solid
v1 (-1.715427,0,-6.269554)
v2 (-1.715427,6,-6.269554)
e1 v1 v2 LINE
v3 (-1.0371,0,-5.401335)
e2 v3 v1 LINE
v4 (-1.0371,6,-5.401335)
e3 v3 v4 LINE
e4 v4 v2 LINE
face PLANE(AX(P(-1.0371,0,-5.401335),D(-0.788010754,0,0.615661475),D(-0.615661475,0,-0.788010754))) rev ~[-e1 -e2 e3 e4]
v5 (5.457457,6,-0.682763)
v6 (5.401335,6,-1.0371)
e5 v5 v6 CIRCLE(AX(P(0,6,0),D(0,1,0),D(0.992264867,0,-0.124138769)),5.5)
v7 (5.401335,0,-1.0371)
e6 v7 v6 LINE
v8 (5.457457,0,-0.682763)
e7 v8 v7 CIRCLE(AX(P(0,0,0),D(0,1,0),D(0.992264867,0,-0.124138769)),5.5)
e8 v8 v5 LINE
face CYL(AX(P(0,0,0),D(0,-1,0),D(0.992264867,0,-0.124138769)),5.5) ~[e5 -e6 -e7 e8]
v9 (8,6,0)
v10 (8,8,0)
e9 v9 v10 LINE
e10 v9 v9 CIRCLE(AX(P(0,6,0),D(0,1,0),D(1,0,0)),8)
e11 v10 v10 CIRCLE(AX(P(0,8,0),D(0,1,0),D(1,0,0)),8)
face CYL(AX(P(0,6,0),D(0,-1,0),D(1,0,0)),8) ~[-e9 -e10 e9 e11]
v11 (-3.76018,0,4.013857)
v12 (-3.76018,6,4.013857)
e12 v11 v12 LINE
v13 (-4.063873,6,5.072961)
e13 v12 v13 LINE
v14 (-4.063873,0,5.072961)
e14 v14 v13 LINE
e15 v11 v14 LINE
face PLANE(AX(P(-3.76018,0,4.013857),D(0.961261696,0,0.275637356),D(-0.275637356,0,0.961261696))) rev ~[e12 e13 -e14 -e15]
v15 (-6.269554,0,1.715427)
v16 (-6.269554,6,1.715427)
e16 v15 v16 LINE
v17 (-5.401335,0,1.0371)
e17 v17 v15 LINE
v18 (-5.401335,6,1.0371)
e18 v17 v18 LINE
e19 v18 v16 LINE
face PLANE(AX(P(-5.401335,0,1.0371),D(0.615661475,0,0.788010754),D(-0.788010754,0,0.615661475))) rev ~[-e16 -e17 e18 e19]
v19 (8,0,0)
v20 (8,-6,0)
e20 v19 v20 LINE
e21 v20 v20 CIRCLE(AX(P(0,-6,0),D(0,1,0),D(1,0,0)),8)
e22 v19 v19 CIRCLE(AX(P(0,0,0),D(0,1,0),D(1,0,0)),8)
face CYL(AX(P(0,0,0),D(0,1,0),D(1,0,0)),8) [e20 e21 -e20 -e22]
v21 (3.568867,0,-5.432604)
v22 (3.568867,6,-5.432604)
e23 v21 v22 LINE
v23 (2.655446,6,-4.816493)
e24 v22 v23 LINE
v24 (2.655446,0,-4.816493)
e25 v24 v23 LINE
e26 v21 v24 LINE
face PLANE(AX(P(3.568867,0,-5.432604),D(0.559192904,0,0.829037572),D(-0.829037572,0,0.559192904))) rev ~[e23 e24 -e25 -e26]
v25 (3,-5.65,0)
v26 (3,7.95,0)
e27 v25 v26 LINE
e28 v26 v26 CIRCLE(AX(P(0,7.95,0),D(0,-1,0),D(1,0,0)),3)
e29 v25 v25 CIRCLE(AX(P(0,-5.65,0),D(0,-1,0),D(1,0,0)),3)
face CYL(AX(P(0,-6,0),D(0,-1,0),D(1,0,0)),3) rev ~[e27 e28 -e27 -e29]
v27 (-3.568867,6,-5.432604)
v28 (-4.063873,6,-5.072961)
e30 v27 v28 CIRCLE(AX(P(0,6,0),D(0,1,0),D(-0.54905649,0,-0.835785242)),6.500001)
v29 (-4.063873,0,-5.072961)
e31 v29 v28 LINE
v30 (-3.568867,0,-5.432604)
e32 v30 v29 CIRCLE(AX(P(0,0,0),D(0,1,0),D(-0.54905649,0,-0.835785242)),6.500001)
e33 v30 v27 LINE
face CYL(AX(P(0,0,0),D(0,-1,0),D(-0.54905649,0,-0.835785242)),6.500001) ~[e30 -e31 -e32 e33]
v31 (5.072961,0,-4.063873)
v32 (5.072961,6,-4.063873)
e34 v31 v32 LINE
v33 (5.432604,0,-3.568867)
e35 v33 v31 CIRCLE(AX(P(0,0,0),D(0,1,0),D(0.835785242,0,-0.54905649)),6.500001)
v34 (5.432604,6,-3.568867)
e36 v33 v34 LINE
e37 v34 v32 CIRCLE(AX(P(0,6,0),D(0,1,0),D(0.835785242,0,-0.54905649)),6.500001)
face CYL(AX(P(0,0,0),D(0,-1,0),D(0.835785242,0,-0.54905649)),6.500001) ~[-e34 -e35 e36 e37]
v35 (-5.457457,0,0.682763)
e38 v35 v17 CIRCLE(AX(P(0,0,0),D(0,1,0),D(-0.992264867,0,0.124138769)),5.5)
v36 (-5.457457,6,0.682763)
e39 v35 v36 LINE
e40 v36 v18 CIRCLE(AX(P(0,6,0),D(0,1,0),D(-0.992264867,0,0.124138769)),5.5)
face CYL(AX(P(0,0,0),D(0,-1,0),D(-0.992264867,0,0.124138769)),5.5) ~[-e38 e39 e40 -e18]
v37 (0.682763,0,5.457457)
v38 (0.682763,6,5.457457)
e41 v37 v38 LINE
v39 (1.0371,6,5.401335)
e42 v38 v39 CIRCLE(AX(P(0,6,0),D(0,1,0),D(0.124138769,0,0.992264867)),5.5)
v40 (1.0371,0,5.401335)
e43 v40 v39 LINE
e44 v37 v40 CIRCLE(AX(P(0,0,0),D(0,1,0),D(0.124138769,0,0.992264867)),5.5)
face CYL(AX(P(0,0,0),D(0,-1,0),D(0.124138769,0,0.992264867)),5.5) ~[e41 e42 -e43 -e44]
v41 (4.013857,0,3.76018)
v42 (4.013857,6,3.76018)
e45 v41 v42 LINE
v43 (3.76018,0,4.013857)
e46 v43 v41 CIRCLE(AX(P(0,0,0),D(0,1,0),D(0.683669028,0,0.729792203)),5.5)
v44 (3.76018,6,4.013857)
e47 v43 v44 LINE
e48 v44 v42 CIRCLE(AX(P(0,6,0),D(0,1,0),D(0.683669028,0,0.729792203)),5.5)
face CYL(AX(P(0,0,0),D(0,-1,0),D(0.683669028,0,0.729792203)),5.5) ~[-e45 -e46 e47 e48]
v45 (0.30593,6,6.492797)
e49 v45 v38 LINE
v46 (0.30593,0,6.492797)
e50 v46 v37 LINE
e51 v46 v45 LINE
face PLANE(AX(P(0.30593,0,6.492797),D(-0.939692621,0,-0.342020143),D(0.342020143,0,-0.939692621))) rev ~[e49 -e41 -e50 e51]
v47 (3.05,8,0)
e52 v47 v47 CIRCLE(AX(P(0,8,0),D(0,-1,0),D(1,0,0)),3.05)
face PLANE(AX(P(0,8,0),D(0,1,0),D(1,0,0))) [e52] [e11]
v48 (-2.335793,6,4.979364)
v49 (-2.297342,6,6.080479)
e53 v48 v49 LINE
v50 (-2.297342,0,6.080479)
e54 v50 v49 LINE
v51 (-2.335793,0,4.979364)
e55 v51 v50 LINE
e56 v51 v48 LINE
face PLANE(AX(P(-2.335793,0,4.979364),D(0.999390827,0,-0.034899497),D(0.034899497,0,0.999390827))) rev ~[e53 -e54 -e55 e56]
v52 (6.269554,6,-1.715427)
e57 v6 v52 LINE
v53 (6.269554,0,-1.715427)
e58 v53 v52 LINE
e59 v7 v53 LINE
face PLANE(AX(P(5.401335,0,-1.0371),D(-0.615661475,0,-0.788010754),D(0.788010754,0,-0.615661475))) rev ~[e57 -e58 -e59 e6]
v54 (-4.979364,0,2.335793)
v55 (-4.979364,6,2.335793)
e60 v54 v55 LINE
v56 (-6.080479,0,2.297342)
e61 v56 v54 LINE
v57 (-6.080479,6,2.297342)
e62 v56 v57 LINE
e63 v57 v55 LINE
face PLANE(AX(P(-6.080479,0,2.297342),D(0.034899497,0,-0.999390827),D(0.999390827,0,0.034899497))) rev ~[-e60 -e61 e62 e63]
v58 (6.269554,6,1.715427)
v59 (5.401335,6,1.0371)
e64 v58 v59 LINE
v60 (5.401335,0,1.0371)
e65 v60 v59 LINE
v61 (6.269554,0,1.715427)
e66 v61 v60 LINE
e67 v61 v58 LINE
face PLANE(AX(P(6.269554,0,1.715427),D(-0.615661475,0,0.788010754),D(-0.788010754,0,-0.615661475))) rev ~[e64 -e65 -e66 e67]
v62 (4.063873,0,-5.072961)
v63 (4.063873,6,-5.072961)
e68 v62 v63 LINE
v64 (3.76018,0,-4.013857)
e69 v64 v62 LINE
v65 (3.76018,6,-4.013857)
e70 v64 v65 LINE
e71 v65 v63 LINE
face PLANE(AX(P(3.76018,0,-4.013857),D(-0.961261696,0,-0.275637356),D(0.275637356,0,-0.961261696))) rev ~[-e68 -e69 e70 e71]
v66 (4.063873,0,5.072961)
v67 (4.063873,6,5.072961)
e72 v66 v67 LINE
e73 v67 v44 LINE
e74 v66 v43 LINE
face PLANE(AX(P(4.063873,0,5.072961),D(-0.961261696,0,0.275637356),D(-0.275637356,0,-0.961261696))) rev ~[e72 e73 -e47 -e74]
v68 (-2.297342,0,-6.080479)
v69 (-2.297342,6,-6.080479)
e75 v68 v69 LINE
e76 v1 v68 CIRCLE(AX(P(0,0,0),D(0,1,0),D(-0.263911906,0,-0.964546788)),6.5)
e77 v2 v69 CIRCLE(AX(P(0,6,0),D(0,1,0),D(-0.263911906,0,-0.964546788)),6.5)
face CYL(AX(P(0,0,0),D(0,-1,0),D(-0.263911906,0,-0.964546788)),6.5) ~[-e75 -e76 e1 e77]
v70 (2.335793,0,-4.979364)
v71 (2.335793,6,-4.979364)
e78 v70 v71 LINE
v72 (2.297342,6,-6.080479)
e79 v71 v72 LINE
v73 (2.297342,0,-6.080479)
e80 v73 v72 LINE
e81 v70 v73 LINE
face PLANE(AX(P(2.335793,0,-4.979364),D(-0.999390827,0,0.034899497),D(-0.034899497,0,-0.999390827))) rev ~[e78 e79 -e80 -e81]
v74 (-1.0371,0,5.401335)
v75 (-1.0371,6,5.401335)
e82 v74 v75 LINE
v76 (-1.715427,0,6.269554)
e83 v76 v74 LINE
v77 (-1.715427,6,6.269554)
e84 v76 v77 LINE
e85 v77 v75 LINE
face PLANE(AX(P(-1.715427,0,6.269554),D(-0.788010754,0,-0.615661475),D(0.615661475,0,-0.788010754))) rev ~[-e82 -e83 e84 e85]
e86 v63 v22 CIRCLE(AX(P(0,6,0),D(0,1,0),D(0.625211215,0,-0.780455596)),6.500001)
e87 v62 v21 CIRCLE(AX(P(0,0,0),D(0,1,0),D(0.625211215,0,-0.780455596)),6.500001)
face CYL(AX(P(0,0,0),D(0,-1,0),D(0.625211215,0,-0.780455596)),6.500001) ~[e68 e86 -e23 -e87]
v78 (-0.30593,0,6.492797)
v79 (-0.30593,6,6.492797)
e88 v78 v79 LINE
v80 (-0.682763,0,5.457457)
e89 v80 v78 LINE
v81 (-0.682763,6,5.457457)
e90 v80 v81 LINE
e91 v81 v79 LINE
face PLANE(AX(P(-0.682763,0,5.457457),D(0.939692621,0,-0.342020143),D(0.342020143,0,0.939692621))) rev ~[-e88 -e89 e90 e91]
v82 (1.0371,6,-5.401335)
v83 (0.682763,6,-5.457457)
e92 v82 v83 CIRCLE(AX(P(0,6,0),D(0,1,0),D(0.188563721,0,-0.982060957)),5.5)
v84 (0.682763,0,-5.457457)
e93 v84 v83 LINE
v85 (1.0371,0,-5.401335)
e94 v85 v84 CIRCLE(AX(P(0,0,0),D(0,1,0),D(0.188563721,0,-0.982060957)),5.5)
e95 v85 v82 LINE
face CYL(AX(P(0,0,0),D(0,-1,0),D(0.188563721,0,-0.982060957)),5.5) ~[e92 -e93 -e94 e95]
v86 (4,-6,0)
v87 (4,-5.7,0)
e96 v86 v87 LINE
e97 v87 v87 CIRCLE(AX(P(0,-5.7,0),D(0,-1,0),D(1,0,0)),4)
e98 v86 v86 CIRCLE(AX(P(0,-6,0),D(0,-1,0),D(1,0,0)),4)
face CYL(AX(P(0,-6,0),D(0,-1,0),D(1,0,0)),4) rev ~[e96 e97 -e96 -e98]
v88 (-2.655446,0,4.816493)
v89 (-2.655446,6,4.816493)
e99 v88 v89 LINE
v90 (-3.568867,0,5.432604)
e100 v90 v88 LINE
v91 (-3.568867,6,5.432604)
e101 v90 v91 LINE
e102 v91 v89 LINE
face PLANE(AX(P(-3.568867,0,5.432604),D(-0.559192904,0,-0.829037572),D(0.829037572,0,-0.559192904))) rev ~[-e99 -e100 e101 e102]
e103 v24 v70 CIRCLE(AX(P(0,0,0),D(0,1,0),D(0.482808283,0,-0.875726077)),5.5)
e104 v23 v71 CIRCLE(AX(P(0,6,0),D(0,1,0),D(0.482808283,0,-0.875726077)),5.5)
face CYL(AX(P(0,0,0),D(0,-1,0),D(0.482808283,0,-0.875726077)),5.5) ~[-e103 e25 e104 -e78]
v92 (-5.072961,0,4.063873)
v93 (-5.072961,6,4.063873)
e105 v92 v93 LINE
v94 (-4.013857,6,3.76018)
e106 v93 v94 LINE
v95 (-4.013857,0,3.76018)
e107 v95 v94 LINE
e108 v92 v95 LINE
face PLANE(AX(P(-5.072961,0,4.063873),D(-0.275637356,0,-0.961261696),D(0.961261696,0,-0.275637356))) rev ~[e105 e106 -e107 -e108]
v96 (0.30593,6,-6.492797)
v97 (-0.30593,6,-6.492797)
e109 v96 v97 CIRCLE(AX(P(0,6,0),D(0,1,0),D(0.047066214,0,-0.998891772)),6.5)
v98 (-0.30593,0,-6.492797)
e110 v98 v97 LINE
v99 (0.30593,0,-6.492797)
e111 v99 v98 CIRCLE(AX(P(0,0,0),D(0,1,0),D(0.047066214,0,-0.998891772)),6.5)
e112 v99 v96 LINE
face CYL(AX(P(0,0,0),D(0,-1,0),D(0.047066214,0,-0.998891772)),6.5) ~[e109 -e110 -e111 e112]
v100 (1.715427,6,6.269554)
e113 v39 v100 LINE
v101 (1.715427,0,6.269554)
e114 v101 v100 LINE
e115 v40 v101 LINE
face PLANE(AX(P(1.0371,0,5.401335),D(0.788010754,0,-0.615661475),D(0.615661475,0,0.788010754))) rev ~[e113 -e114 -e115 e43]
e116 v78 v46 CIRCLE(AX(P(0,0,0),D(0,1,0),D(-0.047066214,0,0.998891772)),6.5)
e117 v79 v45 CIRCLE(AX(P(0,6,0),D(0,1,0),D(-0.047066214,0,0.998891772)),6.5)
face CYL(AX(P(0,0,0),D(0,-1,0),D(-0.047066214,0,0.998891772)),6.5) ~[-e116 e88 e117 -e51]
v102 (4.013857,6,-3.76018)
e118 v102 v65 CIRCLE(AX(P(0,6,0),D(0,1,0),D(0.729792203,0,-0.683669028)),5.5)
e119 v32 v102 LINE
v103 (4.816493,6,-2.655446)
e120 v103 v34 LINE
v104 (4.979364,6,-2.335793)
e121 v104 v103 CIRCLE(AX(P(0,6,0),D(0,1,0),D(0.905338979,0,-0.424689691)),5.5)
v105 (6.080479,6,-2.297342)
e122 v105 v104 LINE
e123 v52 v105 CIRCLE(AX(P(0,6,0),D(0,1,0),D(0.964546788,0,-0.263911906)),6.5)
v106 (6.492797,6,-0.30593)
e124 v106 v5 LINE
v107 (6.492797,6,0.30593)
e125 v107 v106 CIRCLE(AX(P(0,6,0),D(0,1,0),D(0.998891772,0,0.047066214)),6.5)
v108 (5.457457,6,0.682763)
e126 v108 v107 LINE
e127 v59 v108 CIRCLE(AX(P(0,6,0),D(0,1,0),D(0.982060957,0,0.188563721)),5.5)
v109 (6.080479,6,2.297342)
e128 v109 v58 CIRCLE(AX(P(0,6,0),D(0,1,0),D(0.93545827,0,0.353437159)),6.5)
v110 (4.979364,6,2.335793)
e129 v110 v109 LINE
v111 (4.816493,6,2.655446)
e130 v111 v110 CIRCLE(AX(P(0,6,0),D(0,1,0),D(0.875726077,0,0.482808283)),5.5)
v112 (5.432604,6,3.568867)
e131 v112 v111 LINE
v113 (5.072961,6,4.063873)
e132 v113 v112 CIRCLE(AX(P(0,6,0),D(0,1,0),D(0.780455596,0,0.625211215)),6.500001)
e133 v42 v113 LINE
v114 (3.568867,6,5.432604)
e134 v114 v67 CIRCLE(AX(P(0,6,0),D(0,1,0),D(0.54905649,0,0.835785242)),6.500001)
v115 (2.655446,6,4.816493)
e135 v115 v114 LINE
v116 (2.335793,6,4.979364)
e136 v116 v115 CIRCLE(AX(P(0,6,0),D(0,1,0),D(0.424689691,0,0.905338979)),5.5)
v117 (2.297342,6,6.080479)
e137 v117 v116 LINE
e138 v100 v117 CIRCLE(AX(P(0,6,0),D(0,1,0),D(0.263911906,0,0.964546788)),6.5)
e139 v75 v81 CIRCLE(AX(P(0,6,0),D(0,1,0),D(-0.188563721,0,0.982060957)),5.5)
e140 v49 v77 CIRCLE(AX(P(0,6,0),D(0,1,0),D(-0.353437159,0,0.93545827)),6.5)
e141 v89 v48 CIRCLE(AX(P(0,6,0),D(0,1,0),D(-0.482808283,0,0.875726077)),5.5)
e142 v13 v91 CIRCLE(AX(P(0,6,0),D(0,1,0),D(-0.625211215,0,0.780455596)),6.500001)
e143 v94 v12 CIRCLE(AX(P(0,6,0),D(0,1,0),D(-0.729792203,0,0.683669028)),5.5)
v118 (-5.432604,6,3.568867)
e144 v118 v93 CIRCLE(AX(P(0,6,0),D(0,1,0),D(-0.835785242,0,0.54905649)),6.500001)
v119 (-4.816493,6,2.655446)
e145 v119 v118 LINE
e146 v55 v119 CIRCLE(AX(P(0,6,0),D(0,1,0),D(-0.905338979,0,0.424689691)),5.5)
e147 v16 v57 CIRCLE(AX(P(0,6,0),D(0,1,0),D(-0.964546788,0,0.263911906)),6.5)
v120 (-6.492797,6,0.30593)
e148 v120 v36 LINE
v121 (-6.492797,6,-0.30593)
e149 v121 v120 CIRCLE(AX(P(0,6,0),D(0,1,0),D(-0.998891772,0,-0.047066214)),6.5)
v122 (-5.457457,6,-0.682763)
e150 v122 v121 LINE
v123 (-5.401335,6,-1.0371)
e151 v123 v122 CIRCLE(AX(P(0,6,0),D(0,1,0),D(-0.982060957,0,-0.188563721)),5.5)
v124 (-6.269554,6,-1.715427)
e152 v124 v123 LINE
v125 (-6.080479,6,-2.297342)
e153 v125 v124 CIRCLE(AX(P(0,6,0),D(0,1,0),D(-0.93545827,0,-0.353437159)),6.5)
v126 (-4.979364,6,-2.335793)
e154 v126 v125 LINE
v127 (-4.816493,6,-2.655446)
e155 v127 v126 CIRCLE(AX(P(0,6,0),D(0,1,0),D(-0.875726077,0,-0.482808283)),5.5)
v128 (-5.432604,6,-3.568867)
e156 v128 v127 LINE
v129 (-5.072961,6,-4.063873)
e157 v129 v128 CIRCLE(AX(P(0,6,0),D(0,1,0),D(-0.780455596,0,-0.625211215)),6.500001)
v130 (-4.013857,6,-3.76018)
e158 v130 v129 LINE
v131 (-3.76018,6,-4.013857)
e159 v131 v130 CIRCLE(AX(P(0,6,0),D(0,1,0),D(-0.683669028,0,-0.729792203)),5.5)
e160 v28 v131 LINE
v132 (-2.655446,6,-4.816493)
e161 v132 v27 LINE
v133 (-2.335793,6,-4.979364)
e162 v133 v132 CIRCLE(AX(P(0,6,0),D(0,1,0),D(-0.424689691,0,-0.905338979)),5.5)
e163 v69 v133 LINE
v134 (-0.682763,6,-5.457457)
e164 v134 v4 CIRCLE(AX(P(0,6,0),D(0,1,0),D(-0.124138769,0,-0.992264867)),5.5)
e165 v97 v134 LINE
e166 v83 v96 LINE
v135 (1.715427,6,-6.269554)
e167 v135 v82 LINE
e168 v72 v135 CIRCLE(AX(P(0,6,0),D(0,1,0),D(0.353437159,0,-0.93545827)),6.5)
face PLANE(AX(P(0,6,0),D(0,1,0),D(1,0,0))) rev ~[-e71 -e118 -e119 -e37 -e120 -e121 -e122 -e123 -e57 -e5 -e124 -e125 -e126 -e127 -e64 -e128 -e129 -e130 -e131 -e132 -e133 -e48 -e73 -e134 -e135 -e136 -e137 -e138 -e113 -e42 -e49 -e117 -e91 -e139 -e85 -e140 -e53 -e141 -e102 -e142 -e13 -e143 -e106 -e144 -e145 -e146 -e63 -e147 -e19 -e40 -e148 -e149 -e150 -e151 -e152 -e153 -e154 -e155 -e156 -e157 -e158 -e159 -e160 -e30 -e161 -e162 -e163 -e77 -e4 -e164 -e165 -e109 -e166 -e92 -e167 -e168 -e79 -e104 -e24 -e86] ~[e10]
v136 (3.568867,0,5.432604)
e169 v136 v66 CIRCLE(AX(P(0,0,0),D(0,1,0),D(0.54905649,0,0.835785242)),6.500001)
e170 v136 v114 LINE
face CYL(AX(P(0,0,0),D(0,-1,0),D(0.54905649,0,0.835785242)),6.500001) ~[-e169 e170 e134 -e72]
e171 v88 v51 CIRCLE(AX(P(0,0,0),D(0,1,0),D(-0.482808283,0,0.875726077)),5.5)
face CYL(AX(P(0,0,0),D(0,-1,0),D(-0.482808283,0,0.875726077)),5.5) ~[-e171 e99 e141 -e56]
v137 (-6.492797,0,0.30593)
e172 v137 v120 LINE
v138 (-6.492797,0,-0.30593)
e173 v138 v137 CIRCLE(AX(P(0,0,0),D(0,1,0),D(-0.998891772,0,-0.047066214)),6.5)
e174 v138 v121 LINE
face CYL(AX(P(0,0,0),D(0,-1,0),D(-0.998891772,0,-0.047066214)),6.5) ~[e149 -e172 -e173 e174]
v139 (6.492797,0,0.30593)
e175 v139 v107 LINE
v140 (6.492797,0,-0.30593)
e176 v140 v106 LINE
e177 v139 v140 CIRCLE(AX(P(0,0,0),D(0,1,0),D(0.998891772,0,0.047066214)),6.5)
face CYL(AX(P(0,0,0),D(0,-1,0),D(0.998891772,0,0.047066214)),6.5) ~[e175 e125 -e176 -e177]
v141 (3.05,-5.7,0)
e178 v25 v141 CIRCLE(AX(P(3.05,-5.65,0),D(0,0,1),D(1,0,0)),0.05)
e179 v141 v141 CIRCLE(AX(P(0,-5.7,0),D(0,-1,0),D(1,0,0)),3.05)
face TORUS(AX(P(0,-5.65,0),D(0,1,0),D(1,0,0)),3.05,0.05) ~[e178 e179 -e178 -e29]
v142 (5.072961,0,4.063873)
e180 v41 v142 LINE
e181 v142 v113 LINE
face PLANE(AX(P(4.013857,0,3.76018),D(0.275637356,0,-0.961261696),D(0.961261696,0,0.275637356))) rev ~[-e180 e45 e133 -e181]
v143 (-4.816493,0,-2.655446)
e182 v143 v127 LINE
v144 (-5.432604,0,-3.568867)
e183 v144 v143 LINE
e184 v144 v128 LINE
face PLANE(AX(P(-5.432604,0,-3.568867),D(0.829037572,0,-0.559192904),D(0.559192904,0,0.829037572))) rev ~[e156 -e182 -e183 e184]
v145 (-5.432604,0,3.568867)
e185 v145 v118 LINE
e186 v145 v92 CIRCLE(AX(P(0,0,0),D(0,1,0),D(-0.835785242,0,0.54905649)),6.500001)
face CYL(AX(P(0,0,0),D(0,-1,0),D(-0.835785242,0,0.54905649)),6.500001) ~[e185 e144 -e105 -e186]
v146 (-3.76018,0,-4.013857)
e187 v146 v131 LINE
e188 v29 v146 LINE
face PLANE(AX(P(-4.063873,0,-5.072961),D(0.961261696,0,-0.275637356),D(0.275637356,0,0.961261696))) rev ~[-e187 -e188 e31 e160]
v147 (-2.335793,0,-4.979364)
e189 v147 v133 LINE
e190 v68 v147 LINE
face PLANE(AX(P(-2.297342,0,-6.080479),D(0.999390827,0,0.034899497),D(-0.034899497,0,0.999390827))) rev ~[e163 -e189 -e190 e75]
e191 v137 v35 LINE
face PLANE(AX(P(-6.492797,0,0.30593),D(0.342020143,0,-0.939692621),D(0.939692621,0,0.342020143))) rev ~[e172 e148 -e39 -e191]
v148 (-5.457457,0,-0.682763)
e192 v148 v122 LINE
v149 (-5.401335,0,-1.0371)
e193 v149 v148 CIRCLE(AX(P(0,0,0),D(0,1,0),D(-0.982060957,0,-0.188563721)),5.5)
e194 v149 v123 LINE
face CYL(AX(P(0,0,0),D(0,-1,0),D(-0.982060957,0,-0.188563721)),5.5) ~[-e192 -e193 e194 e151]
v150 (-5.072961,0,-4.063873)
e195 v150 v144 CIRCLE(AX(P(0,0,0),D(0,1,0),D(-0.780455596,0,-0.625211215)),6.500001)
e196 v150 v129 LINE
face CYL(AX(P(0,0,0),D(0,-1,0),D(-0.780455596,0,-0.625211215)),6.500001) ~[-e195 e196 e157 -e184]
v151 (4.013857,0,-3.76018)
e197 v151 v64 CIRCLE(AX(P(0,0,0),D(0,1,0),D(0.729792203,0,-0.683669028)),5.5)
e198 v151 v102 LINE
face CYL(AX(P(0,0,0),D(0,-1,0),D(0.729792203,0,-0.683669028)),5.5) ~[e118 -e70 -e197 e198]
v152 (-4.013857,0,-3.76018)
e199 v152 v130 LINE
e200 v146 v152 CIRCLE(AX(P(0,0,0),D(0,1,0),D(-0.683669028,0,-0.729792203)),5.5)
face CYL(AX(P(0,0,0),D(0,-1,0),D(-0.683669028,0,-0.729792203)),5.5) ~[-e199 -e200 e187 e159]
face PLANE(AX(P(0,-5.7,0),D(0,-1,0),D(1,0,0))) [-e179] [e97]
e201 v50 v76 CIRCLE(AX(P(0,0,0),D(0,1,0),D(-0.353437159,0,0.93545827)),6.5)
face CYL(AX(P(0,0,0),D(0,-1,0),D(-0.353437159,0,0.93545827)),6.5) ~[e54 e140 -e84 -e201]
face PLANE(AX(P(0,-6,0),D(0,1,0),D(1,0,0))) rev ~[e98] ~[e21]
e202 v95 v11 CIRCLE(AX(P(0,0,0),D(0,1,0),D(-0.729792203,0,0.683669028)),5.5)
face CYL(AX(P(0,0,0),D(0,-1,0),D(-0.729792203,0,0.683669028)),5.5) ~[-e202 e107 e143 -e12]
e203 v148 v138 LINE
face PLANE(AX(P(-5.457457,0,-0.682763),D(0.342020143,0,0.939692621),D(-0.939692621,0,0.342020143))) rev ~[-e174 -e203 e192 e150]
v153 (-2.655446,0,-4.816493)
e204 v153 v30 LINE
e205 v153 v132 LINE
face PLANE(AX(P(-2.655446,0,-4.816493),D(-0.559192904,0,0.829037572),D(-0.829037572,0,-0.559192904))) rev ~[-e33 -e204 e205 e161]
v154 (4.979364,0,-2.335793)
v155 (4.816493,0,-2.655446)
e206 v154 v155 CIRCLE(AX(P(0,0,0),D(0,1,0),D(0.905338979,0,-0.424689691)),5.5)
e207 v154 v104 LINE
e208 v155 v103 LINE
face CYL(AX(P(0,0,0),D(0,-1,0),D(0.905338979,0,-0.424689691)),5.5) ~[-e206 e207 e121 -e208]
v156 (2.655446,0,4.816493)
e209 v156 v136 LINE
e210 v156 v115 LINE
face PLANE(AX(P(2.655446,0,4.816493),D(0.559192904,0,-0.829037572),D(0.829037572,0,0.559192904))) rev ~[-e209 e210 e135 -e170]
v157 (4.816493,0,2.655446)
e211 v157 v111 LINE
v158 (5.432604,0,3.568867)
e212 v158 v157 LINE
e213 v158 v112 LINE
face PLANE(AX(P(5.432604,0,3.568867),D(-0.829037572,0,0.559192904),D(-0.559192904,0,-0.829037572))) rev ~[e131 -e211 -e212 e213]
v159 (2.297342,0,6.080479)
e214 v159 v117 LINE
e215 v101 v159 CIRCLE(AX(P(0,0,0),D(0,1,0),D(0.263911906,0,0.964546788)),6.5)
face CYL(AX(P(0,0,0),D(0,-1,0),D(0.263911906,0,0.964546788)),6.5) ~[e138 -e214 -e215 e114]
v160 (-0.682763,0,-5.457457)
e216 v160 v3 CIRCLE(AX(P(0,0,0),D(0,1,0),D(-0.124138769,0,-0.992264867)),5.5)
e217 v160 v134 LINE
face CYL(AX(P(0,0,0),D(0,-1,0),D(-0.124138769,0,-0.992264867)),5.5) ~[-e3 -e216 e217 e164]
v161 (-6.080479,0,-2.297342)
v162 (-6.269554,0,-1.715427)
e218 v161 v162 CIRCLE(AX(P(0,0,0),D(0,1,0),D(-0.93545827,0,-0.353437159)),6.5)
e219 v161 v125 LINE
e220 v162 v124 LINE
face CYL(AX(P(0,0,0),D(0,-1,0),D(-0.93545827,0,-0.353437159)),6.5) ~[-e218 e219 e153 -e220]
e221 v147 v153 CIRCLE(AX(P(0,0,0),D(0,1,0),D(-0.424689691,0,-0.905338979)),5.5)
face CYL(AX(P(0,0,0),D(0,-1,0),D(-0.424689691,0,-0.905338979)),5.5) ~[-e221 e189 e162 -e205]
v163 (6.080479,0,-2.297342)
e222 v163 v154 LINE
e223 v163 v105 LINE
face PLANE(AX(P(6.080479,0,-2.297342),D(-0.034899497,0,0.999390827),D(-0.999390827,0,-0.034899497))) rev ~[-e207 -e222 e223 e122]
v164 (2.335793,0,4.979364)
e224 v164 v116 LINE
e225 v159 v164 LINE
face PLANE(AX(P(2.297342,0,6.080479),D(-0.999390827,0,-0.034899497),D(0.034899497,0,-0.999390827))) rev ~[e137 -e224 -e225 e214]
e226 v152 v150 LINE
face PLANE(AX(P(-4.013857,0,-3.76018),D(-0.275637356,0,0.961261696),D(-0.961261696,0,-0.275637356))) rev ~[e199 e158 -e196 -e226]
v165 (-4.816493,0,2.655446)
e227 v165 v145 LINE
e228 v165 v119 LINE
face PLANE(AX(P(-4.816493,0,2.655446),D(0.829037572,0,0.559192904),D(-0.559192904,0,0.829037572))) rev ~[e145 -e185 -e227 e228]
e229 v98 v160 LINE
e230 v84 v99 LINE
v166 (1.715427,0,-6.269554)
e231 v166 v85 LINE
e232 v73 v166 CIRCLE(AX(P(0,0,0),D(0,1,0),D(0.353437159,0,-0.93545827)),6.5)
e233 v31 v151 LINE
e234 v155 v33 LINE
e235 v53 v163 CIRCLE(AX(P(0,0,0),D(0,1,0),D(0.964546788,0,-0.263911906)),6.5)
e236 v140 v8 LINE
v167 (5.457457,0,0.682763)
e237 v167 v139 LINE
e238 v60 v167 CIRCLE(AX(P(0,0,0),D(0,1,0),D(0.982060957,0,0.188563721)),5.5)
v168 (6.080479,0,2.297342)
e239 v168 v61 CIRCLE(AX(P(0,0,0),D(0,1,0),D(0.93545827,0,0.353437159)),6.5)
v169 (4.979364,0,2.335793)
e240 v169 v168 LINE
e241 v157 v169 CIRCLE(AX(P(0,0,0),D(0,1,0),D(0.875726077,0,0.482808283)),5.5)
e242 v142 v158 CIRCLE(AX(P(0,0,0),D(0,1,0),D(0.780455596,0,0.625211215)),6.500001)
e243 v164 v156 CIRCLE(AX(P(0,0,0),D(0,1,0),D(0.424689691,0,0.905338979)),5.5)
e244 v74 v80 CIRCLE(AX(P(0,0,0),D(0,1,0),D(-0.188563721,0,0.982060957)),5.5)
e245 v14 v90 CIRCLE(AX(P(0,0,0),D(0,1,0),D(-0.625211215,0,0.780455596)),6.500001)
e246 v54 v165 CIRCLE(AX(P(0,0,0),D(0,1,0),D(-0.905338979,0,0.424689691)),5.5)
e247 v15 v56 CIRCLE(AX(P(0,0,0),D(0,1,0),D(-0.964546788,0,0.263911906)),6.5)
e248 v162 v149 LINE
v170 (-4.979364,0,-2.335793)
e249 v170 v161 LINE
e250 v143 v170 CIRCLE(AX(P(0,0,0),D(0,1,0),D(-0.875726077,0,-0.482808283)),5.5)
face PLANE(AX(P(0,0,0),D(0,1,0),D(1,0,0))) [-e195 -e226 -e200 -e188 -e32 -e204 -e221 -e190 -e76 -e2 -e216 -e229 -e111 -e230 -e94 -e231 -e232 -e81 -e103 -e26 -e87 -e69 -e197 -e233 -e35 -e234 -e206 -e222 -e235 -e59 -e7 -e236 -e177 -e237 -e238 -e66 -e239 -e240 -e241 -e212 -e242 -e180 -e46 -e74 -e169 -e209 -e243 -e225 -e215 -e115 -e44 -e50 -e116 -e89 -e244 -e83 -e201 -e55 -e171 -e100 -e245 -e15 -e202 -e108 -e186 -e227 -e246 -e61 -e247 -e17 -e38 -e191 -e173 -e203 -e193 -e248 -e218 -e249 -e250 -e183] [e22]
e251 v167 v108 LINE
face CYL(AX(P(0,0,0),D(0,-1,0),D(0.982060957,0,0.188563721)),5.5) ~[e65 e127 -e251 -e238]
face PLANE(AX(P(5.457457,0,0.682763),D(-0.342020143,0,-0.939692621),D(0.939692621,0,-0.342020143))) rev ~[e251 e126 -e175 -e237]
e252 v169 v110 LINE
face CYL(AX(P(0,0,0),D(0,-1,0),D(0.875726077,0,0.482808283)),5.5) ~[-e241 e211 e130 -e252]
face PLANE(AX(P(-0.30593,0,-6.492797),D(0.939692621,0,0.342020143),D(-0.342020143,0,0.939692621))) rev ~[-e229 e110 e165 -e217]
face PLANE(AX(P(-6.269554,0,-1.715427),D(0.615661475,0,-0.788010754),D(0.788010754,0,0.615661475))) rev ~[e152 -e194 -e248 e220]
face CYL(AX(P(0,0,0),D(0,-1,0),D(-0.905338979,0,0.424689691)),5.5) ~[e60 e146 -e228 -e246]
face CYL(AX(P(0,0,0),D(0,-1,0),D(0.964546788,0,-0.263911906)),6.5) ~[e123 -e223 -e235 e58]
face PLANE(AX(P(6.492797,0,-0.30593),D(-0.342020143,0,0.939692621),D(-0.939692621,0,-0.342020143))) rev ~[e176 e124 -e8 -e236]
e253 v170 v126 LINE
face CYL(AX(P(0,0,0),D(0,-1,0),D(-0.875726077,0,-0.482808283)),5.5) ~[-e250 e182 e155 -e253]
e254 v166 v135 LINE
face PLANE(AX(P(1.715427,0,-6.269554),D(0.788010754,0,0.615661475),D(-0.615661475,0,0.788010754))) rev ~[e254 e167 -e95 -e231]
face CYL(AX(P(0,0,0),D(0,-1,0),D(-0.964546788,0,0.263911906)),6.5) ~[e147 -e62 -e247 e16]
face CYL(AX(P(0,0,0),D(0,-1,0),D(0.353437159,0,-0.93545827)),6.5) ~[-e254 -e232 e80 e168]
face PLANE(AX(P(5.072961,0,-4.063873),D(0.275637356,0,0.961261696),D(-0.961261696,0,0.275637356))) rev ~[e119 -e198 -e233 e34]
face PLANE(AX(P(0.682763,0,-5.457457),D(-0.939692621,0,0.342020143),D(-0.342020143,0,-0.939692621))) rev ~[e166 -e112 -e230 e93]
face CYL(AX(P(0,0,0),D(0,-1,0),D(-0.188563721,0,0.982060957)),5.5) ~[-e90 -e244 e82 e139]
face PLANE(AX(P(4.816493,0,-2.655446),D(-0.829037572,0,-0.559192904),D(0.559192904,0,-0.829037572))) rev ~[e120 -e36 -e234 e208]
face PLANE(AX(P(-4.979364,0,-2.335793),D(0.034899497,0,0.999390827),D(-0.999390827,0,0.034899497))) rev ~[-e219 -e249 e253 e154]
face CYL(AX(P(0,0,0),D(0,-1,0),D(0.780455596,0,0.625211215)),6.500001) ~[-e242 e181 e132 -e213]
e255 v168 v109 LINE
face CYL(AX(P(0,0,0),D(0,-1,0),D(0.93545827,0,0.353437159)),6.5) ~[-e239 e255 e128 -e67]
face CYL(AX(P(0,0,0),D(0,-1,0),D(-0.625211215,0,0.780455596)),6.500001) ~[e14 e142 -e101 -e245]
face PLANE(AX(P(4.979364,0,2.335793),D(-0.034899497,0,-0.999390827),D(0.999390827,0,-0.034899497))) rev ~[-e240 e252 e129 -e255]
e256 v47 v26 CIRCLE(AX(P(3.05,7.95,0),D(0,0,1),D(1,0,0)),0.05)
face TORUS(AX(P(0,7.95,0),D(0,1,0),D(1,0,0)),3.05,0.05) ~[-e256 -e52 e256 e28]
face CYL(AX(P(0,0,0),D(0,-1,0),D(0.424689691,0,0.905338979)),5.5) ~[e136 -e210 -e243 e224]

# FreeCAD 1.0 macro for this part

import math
import FreeCAD as App
import Part
import Sketcher

V = App.Vector
Q = App.Units.Quantity


def edges_at(feature, points):
    """Names of the edges that pass closest to the given points."""
    edges = feature.Shape.Edges
    near = lambda p: min(range(len(edges)), key=lambda i: edges[i].distToShape(Part.Vertex(*p))[0])
    return sorted({f"Edge{near(p) + 1}" for p in points})

doc = App.newDocument("Part")
body = doc.addObject("PartDesign::Body", "Body")

# Sketch on XZ plane
sketch1 = body.newObject("Sketcher::SketchObject", "Sketch")
sketch1.AttachmentSupport = (doc.getObject("XZ_Plane"), [""])
sketch1.MapMode = "FlatFace"
sketch1.addGeometry(Part.Circle(V(0, 0, 0), V(0, 0, 1), 8), False)
sketch1.addConstraint([
    Sketcher.Constraint("Coincident", 0, 3, -1, 1),
    Sketcher.Constraint("Diameter", 0, Q("16 mm")),
])
pad1 = body.newObject("PartDesign::Pad", "Pad")
pad1.Profile = sketch1
pad1.Length = 6

# Sketch on XZ plane
sketch2 = body.newObject("Sketcher::SketchObject", "Sketch001")
sketch2.AttachmentSupport = (doc.getObject("XZ_Plane"), [""])
sketch2.MapMode = "FlatFace"
sketch2.addGeometry([
    Part.LineSegment(V(-0.31, -6.49, 0), V(-0.68, -5.46, 0)),  # 0
    Part.ArcOfCircle(Part.Circle(V(0, 0, 0), V(0, 0, 1), 5.5), math.radians(-100.87), math.radians(-97.13)),  # 1
    Part.LineSegment(V(-1.04, -5.4, 0), V(-1.72, -6.27, 0)),  # 2
    Part.ArcOfCircle(Part.Circle(V(0, 0, 0), V(0, 0, 1), 6.5), math.radians(-110.7), math.radians(-105.3)),  # 3
    Part.LineSegment(V(-2.3, -6.08, 0), V(-2.34, -4.98, 0)),  # 4
    Part.ArcOfCircle(Part.Circle(V(0, 0, 0), V(0, 0, 1), 5.5), math.radians(-118.87), math.radians(-115.13)),  # 5
    Part.LineSegment(V(-2.66, -4.82, 0), V(-3.57, -5.43, 0)),  # 6
    Part.ArcOfCircle(Part.Circle(V(0, 0, 0), V(0, 0, 1), 6.5), math.radians(-128.7), math.radians(-123.3)),  # 7
    Part.LineSegment(V(-4.06, -5.07, 0), V(-3.76, -4.01, 0)),  # 8
    Part.ArcOfCircle(Part.Circle(V(0, 0, 0), V(0, 0, 1), 5.5), math.radians(-136.87), math.radians(-133.13)),  # 9
    Part.LineSegment(V(-4.01, -3.76, 0), V(-5.07, -4.06, 0)),  # 10
    Part.ArcOfCircle(Part.Circle(V(0, 0, 0), V(0, 0, 1), 6.5), math.radians(-146.7), math.radians(-141.3)),  # 11
    Part.LineSegment(V(-5.43, -3.57, 0), V(-4.82, -2.66, 0)),  # 12
    Part.ArcOfCircle(Part.Circle(V(0, 0, 0), V(0, 0, 1), 5.5), math.radians(-154.87), math.radians(-151.13)),  # 13
    Part.LineSegment(V(-4.98, -2.34, 0), V(-6.08, -2.3, 0)),  # 14
    Part.ArcOfCircle(Part.Circle(V(0, 0, 0), V(0, 0, 1), 6.5), math.radians(-164.7), math.radians(-159.3)),  # 15
    Part.LineSegment(V(-6.27, -1.72, 0), V(-5.4, -1.04, 0)),  # 16
    Part.ArcOfCircle(Part.Circle(V(0, 0, 0), V(0, 0, 1), 5.5), math.radians(-172.87), math.radians(-169.13)),  # 17
    Part.LineSegment(V(-5.46, -0.68, 0), V(-6.49, -0.31, 0)),  # 18
    Part.ArcOfCircle(Part.Circle(V(0, 0, 0), V(0, 0, 1), 6.5), math.radians(177.3), math.radians(182.7)),  # 19
    Part.LineSegment(V(-6.49, 0.31, 0), V(-5.46, 0.68, 0)),  # 20
    Part.ArcOfCircle(Part.Circle(V(0, 0, 0), V(0, 0, 1), 5.5), math.radians(169.13), math.radians(172.87)),  # 21
    Part.LineSegment(V(-5.4, 1.04, 0), V(-6.27, 1.72, 0)),  # 22
    Part.ArcOfCircle(Part.Circle(V(0, 0, 0), V(0, 0, 1), 6.5), math.radians(159.3), math.radians(164.7)),  # 23
    Part.LineSegment(V(-6.08, 2.3, 0), V(-4.98, 2.34, 0)),  # 24
    Part.ArcOfCircle(Part.Circle(V(0, 0, 0), V(0, 0, 1), 5.5), math.radians(151.13), math.radians(154.87)),  # 25
    Part.LineSegment(V(-4.82, 2.66, 0), V(-5.43, 3.57, 0)),  # 26
    Part.ArcOfCircle(Part.Circle(V(0, 0, 0), V(0, 0, 1), 6.5), math.radians(141.3), math.radians(146.7)),  # 27
    Part.LineSegment(V(-5.07, 4.06, 0), V(-4.01, 3.76, 0)),  # 28
    Part.ArcOfCircle(Part.Circle(V(0, 0, 0), V(0, 0, 1), 5.5), math.radians(133.13), math.radians(136.87)),  # 29
    Part.LineSegment(V(-3.76, 4.01, 0), V(-4.06, 5.07, 0)),  # 30
    Part.ArcOfCircle(Part.Circle(V(0, 0, 0), V(0, 0, 1), 6.5), math.radians(123.3), math.radians(128.7)),  # 31
    Part.LineSegment(V(-3.57, 5.43, 0), V(-2.66, 4.82, 0)),  # 32
    Part.ArcOfCircle(Part.Circle(V(0, 0, 0), V(0, 0, 1), 5.5), math.radians(115.13), math.radians(118.87)),  # 33
    Part.LineSegment(V(-2.34, 4.98, 0), V(-2.3, 6.08, 0)),  # 34
    Part.ArcOfCircle(Part.Circle(V(0, 0, 0), V(0, 0, 1), 6.5), math.radians(105.3), math.radians(110.7)),  # 35
    Part.LineSegment(V(-1.72, 6.27, 0), V(-1.04, 5.4, 0)),  # 36
    Part.ArcOfCircle(Part.Circle(V(0, 0, 0), V(0, 0, 1), 5.5), math.radians(97.13), math.radians(100.87)),  # 37
    Part.LineSegment(V(-0.68, 5.46, 0), V(-0.31, 6.49, 0)),  # 38
    Part.ArcOfCircle(Part.Circle(V(0, 0, 0), V(0, 0, 1), 6.5), math.radians(87.3), math.radians(92.7)),  # 39
    Part.LineSegment(V(0.31, 6.49, 0), V(0.68, 5.46, 0)),  # 40
    Part.ArcOfCircle(Part.Circle(V(0, 0, 0), V(0, 0, 1), 5.5), math.radians(79.13), math.radians(82.87)),  # 41
    Part.LineSegment(V(1.04, 5.4, 0), V(1.72, 6.27, 0)),  # 42
    Part.ArcOfCircle(Part.Circle(V(0, 0, 0), V(0, 0, 1), 6.5), math.radians(69.3), math.radians(74.7)),  # 43
    Part.LineSegment(V(2.3, 6.08, 0), V(2.34, 4.98, 0)),  # 44
    Part.ArcOfCircle(Part.Circle(V(0, 0, 0), V(0, 0, 1), 5.5), math.radians(61.13), math.radians(64.87)),  # 45
    Part.LineSegment(V(2.66, 4.82, 0), V(3.57, 5.43, 0)),  # 46
    Part.ArcOfCircle(Part.Circle(V(0, 0, 0), V(0, 0, 1), 6.5), math.radians(51.3), math.radians(56.7)),  # 47
    Part.LineSegment(V(4.06, 5.07, 0), V(3.76, 4.01, 0)),  # 48
    Part.ArcOfCircle(Part.Circle(V(0, 0, 0), V(0, 0, 1), 5.5), math.radians(43.13), math.radians(46.87)),  # 49
    Part.LineSegment(V(4.01, 3.76, 0), V(5.07, 4.06, 0)),  # 50
    Part.ArcOfCircle(Part.Circle(V(0, 0, 0), V(0, 0, 1), 6.5), math.radians(33.3), math.radians(38.7)),  # 51
    Part.LineSegment(V(5.43, 3.57, 0), V(4.82, 2.66, 0)),  # 52
    Part.ArcOfCircle(Part.Circle(V(0, 0, 0), V(0, 0, 1), 5.5), math.radians(25.13), math.radians(28.87)),  # 53
    Part.LineSegment(V(4.98, 2.34, 0), V(6.08, 2.3, 0)),  # 54
    Part.ArcOfCircle(Part.Circle(V(0, 0, 0), V(0, 0, 1), 6.5), math.radians(15.3), math.radians(20.7)),  # 55
    Part.LineSegment(V(6.27, 1.72, 0), V(5.4, 1.04, 0)),  # 56
    Part.ArcOfCircle(Part.Circle(V(0, 0, 0), V(0, 0, 1), 5.5), math.radians(7.13), math.radians(10.87)),  # 57
    Part.LineSegment(V(5.46, 0.68, 0), V(6.49, 0.31, 0)),  # 58
    Part.ArcOfCircle(Part.Circle(V(0, 0, 0), V(0, 0, 1), 6.5), math.radians(-2.7), math.radians(2.7)),  # 59
    Part.LineSegment(V(6.49, -0.31, 0), V(5.46, -0.68, 0)),  # 60
    Part.ArcOfCircle(Part.Circle(V(0, 0, 0), V(0, 0, 1), 5.5), math.radians(-10.87), math.radians(-7.13)),  # 61
    Part.LineSegment(V(5.4, -1.04, 0), V(6.27, -1.72, 0)),  # 62
    Part.ArcOfCircle(Part.Circle(V(0, 0, 0), V(0, 0, 1), 6.5), math.radians(-20.7), math.radians(-15.3)),  # 63
    Part.LineSegment(V(6.08, -2.3, 0), V(4.98, -2.34, 0)),  # 64
    Part.ArcOfCircle(Part.Circle(V(0, 0, 0), V(0, 0, 1), 5.5), math.radians(-28.87), math.radians(-25.13)),  # 65
    Part.LineSegment(V(4.82, -2.66, 0), V(5.43, -3.57, 0)),  # 66
    Part.ArcOfCircle(Part.Circle(V(0, 0, 0), V(0, 0, 1), 6.5), math.radians(-38.7), math.radians(-33.3)),  # 67
    Part.LineSegment(V(5.07, -4.06, 0), V(4.01, -3.76, 0)),  # 68
    Part.ArcOfCircle(Part.Circle(V(0, 0, 0), V(0, 0, 1), 5.5), math.radians(-46.87), math.radians(-43.13)),  # 69
    Part.LineSegment(V(3.76, -4.01, 0), V(4.06, -5.07, 0)),  # 70
    Part.ArcOfCircle(Part.Circle(V(0, 0, 0), V(0, 0, 1), 6.5), math.radians(-56.7), math.radians(-51.3)),  # 71
    Part.LineSegment(V(3.57, -5.43, 0), V(2.66, -4.82, 0)),  # 72
    Part.ArcOfCircle(Part.Circle(V(0, 0, 0), V(0, 0, 1), 5.5), math.radians(-64.87), math.radians(-61.13)),  # 73
    Part.LineSegment(V(2.34, -4.98, 0), V(2.3, -6.08, 0)),  # 74
    Part.ArcOfCircle(Part.Circle(V(0, 0, 0), V(0, 0, 1), 6.5), math.radians(-74.7), math.radians(-69.3)),  # 75
    Part.LineSegment(V(1.72, -6.27, 0), V(1.04, -5.4, 0)),  # 76
    Part.ArcOfCircle(Part.Circle(V(0, 0, 0), V(0, 0, 1), 5.5), math.radians(-82.87), math.radians(-79.13)),  # 77
    Part.LineSegment(V(0.68, -5.46, 0), V(0.31, -6.49, 0)),  # 78
    Part.ArcOfCircle(Part.Circle(V(0, 0, 0), V(0, 0, 1), 6.5), math.radians(-92.7), math.radians(-87.3)),  # 79
], False)
sketch2.addConstraint([
    Sketcher.Constraint("Coincident", 0, 2, 1, 2),
    Sketcher.Constraint("Coincident", 1, 1, 2, 1),
    Sketcher.Constraint("Coincident", 2, 2, 3, 2),
    Sketcher.Constraint("Coincident", 3, 1, 4, 1),
    Sketcher.Constraint("Coincident", 4, 2, 5, 2),
    Sketcher.Constraint("Coincident", 5, 1, 6, 1),
    Sketcher.Constraint("Coincident", 6, 2, 7, 2),
    Sketcher.Constraint("Coincident", 7, 1, 8, 1),
    Sketcher.Constraint("Coincident", 8, 2, 9, 2),
    Sketcher.Constraint("Coincident", 9, 1, 10, 1),
    Sketcher.Constraint("Coincident", 10, 2, 11, 2),
    Sketcher.Constraint("Coincident", 11, 1, 12, 1),
    Sketcher.Constraint("Coincident", 12, 2, 13, 2),
    Sketcher.Constraint("Coincident", 13, 1, 14, 1),
    Sketcher.Constraint("Coincident", 14, 2, 15, 2),
    Sketcher.Constraint("Coincident", 15, 1, 16, 1),
    Sketcher.Constraint("Coincident", 16, 2, 17, 2),
    Sketcher.Constraint("Coincident", 17, 1, 18, 1),
    Sketcher.Constraint("Coincident", 18, 2, 19, 2),
    Sketcher.Constraint("Coincident", 19, 1, 20, 1),
    Sketcher.Constraint("Coincident", 20, 2, 21, 2),
    Sketcher.Constraint("Coincident", 21, 1, 22, 1),
    Sketcher.Constraint("Coincident", 22, 2, 23, 2),
    Sketcher.Constraint("Coincident", 23, 1, 24, 1),
    Sketcher.Constraint("Coincident", 24, 2, 25, 2),
    Sketcher.Constraint("Coincident", 25, 1, 26, 1),
    Sketcher.Constraint("Coincident", 26, 2, 27, 2),
    Sketcher.Constraint("Coincident", 27, 1, 28, 1),
    Sketcher.Constraint("Coincident", 28, 2, 29, 2),
    Sketcher.Constraint("Coincident", 29, 1, 30, 1),
    Sketcher.Constraint("Coincident", 30, 2, 31, 2),
    Sketcher.Constraint("Coincident", 31, 1, 32, 1),
    Sketcher.Constraint("Coincident", 32, 2, 33, 2),
    Sketcher.Constraint("Coincident", 33, 1, 34, 1),
    Sketcher.Constraint("Coincident", 34, 2, 35, 2),
    Sketcher.Constraint("Coincident", 35, 1, 36, 1),
    Sketcher.Constraint("Coincident", 36, 2, 37, 2),
    Sketcher.Constraint("Coincident", 37, 1, 38, 1),
    Sketcher.Constraint("Coincident", 38, 2, 39, 2),
    Sketcher.Constraint("Coincident", 39, 1, 40, 1),
    Sketcher.Constraint("Coincident", 40, 2, 41, 2),
    Sketcher.Constraint("Coincident", 41, 1, 42, 1),
    Sketcher.Constraint("Coincident", 42, 2, 43, 2),
    Sketcher.Constraint("Coincident", 43, 1, 44, 1),
    Sketcher.Constraint("Coincident", 44, 2, 45, 2),
    Sketcher.Constraint("Coincident", 45, 1, 46, 1),
    Sketcher.Constraint("Coincident", 46, 2, 47, 2),
    Sketcher.Constraint("Coincident", 47, 1, 48, 1),
    Sketcher.Constraint("Coincident", 48, 2, 49, 2),
    Sketcher.Constraint("Coincident", 49, 1, 50, 1),
    Sketcher.Constraint("Coincident", 50, 2, 51, 2),
    Sketcher.Constraint("Coincident", 51, 1, 52, 1),
    Sketcher.Constraint("Coincident", 52, 2, 53, 2),
    Sketcher.Constraint("Coincident", 53, 1, 54, 1),
    Sketcher.Constraint("Coincident", 54, 2, 55, 2),
    Sketcher.Constraint("Coincident", 55, 1, 56, 1),
    Sketcher.Constraint("Coincident", 56, 2, 57, 2),
    Sketcher.Constraint("Coincident", 57, 1, 58, 1),
    Sketcher.Constraint("Coincident", 58, 2, 59, 2),
    Sketcher.Constraint("Coincident", 59, 1, 60, 1),
    Sketcher.Constraint("Coincident", 60, 2, 61, 2),
    Sketcher.Constraint("Coincident", 61, 1, 62, 1),
    Sketcher.Constraint("Coincident", 62, 2, 63, 2),
    Sketcher.Constraint("Coincident", 63, 1, 64, 1),
    Sketcher.Constraint("Coincident", 64, 2, 65, 2),
    Sketcher.Constraint("Coincident", 65, 1, 66, 1),
    Sketcher.Constraint("Coincident", 66, 2, 67, 2),
    Sketcher.Constraint("Coincident", 67, 1, 68, 1),
    Sketcher.Constraint("Coincident", 68, 2, 69, 2),
    Sketcher.Constraint("Coincident", 69, 1, 70, 1),
    Sketcher.Constraint("Coincident", 70, 2, 71, 2),
    Sketcher.Constraint("Coincident", 71, 1, 72, 1),
    Sketcher.Constraint("Coincident", 72, 2, 73, 2),
    Sketcher.Constraint("Coincident", 73, 1, 74, 1),
    Sketcher.Constraint("Coincident", 74, 2, 75, 2),
    Sketcher.Constraint("Coincident", 75, 1, 76, 1),
    Sketcher.Constraint("Coincident", 76, 2, 77, 2),
    Sketcher.Constraint("Coincident", 77, 1, 78, 1),
    Sketcher.Constraint("Coincident", 78, 2, 79, 2),
    Sketcher.Constraint("Coincident", 79, 1, 0, 1),
    Sketcher.Constraint("Coincident", 1, 3, -1, 1),
    Sketcher.Constraint("Coincident", 3, 3, -1, 1),
    Sketcher.Constraint("Coincident", 5, 3, -1, 1),
    Sketcher.Constraint("Coincident", 7, 3, -1, 1),
    Sketcher.Constraint("Coincident", 9, 3, -1, 1),
    Sketcher.Constraint("Coincident", 11, 3, -1, 1),
    Sketcher.Constraint("Coincident", 13, 3, -1, 1),
    Sketcher.Constraint("Coincident", 15, 3, -1, 1),
    Sketcher.Constraint("Coincident", 17, 3, -1, 1),
    Sketcher.Constraint("Coincident", 19, 3, -1, 1),
    Sketcher.Constraint("Coincident", 21, 3, -1, 1),
    Sketcher.Constraint("Coincident", 23, 3, -1, 1),
    Sketcher.Constraint("Coincident", 25, 3, -1, 1),
    Sketcher.Constraint("Coincident", 27, 3, -1, 1),
    Sketcher.Constraint("Coincident", 29, 3, -1, 1),
    Sketcher.Constraint("Coincident", 31, 3, -1, 1),
    Sketcher.Constraint("Coincident", 33, 3, -1, 1),
    Sketcher.Constraint("Coincident", 35, 3, -1, 1),
    Sketcher.Constraint("Coincident", 37, 3, -1, 1),
    Sketcher.Constraint("Coincident", 39, 3, -1, 1),
    Sketcher.Constraint("Coincident", 41, 3, -1, 1),
    Sketcher.Constraint("Coincident", 43, 3, -1, 1),
    Sketcher.Constraint("Coincident", 45, 3, -1, 1),
    Sketcher.Constraint("Coincident", 47, 3, -1, 1),
    Sketcher.Constraint("Coincident", 49, 3, -1, 1),
    Sketcher.Constraint("Coincident", 51, 3, -1, 1),
    Sketcher.Constraint("Coincident", 53, 3, -1, 1),
    Sketcher.Constraint("Coincident", 55, 3, -1, 1),
    Sketcher.Constraint("Coincident", 57, 3, -1, 1),
    Sketcher.Constraint("Coincident", 59, 3, -1, 1),
    Sketcher.Constraint("Coincident", 61, 3, -1, 1),
    Sketcher.Constraint("Coincident", 63, 3, -1, 1),
    Sketcher.Constraint("Coincident", 65, 3, -1, 1),
    Sketcher.Constraint("Coincident", 67, 3, -1, 1),
    Sketcher.Constraint("Coincident", 69, 3, -1, 1),
    Sketcher.Constraint("Coincident", 71, 3, -1, 1),
    Sketcher.Constraint("Coincident", 73, 3, -1, 1),
    Sketcher.Constraint("Coincident", 75, 3, -1, 1),
    Sketcher.Constraint("Coincident", 77, 3, -1, 1),
    Sketcher.Constraint("Coincident", 79, 3, -1, 1),
    Sketcher.Constraint("Equal", 1, 5),
    Sketcher.Constraint("Equal", 3, 7),
    Sketcher.Constraint("Equal", 5, 9),
    Sketcher.Constraint("Equal", 7, 11),
    Sketcher.Constraint("Equal", 9, 13),
    Sketcher.Constraint("Equal", 11, 15),
    Sketcher.Constraint("Equal", 13, 17),
    Sketcher.Constraint("Equal", 15, 19),
    Sketcher.Constraint("Equal", 17, 21),
    Sketcher.Constraint("Equal", 19, 23),
    Sketcher.Constraint("Equal", 21, 25),
    Sketcher.Constraint("Equal", 23, 27),
    Sketcher.Constraint("Equal", 25, 29),
    Sketcher.Constraint("Equal", 27, 31),
    Sketcher.Constraint("Equal", 29, 33),
    Sketcher.Constraint("Equal", 31, 35),
    Sketcher.Constraint("Equal", 33, 37),
    Sketcher.Constraint("Equal", 35, 39),
    Sketcher.Constraint("Equal", 37, 41),
    Sketcher.Constraint("Equal", 39, 43),
    Sketcher.Constraint("Equal", 41, 45),
    Sketcher.Constraint("Equal", 43, 47),
    Sketcher.Constraint("Equal", 45, 49),
    Sketcher.Constraint("Equal", 47, 51),
    Sketcher.Constraint("Equal", 49, 53),
    Sketcher.Constraint("Equal", 51, 55),
    Sketcher.Constraint("Equal", 53, 57),
    Sketcher.Constraint("Equal", 55, 59),
    Sketcher.Constraint("Equal", 57, 61),
    Sketcher.Constraint("Equal", 59, 63),
    Sketcher.Constraint("Equal", 61, 65),
    Sketcher.Constraint("Equal", 63, 67),
    Sketcher.Constraint("Equal", 65, 69),
    Sketcher.Constraint("Equal", 67, 71),
    Sketcher.Constraint("Equal", 69, 73),
    Sketcher.Constraint("Equal", 71, 75),
    Sketcher.Constraint("Equal", 73, 77),
    Sketcher.Constraint("Equal", 75, 79),
    Sketcher.Constraint("Perpendicular", 0, 20),
    Sketcher.Constraint("Perpendicular", 2, 22),
    Sketcher.Constraint("Perpendicular", 4, 24),
    Sketcher.Constraint("Perpendicular", 6, 26),
    Sketcher.Constraint("Perpendicular", 8, 28),
    Sketcher.Constraint("Perpendicular", 10, 30),
    Sketcher.Constraint("Perpendicular", 12, 32),
    Sketcher.Constraint("Perpendicular", 14, 34),
    Sketcher.Constraint("Perpendicular", 16, 36),
    Sketcher.Constraint("Perpendicular", 18, 38),
    Sketcher.Constraint("Perpendicular", 20, 40),
    Sketcher.Constraint("Perpendicular", 22, 42),
    Sketcher.Constraint("Perpendicular", 24, 44),
    Sketcher.Constraint("Perpendicular", 26, 46),
    Sketcher.Constraint("Perpendicular", 28, 48),
    Sketcher.Constraint("Perpendicular", 30, 50),
    Sketcher.Constraint("Perpendicular", 32, 52),
    Sketcher.Constraint("Perpendicular", 34, 54),
    Sketcher.Constraint("Perpendicular", 36, 56),
    Sketcher.Constraint("Perpendicular", 38, 58),
    Sketcher.Constraint("Perpendicular", 40, 60),
    Sketcher.Constraint("Perpendicular", 42, 62),
    Sketcher.Constraint("Perpendicular", 44, 64),
    Sketcher.Constraint("Perpendicular", 46, 66),
    Sketcher.Constraint("Perpendicular", 48, 68),
    Sketcher.Constraint("Perpendicular", 50, 70),
    Sketcher.Constraint("Perpendicular", 52, 72),
    Sketcher.Constraint("Perpendicular", 54, 74),
    Sketcher.Constraint("Perpendicular", 56, 76),
    Sketcher.Constraint("Perpendicular", 58, 78),
    Sketcher.Constraint("Horizontal", 38, 2, 39, 1),
    Sketcher.Constraint("Horizontal", 37, 1, 40, 2),
    Sketcher.Constraint("Horizontal", 36, 2, 41, 1),
    Sketcher.Constraint("Horizontal", 35, 1, 42, 2),
    Sketcher.Constraint("Horizontal", 34, 2, 43, 1),
    Sketcher.Constraint("Horizontal", 33, 1, 44, 2),
    Sketcher.Constraint("Horizontal", 32, 2, 45, 1),
    Sketcher.Constraint("Horizontal", 31, 1, 46, 2),
    Sketcher.Constraint("Horizontal", 30, 2, 47, 1),
    Sketcher.Constraint("Horizontal", 29, 1, 48, 2),
    Sketcher.Constraint("Horizontal", 28, 2, 49, 1),
    Sketcher.Constraint("Horizontal", 26, 2, 51, 1),
    Sketcher.Constraint("Horizontal", 24, 2, 53, 1),
    Sketcher.Constraint("Horizontal", 22, 2, 55, 1),
    Sketcher.Constraint("Horizontal", 20, 2, 57, 1),
    Sketcher.Constraint("Horizontal", 18, 2, 59, 1),
    Sketcher.Constraint("Horizontal", 16, 2, 61, 1),
    Sketcher.Constraint("Horizontal", 14, 2, 63, 1),
    Sketcher.Constraint("Horizontal", 12, 2, 65, 1),
    Sketcher.Constraint("Horizontal", 10, 2, 67, 1),
    Sketcher.Constraint("Horizontal", 8, 2, 69, 1),
    Sketcher.Constraint("Horizontal", 6, 2, 71, 1),
    Sketcher.Constraint("Horizontal", 4, 2, 73, 1),
    Sketcher.Constraint("Horizontal", 2, 2, 75, 1),
    Sketcher.Constraint("Horizontal", 0, 2, 77, 1),
    Sketcher.Constraint("Vertical", 18, 2, 19, 1),
    Sketcher.Constraint("Vertical", 16, 2, 21, 1),
    Sketcher.Constraint("Vertical", 14, 2, 23, 1),
    Sketcher.Constraint("Vertical", 12, 2, 25, 1),
    Sketcher.Constraint("Vertical", 10, 2, 27, 1),
    Sketcher.Constraint("Vertical", 8, 2, 29, 1),
    Sketcher.Constraint("Vertical", 6, 2, 31, 1),
    Sketcher.Constraint("Vertical", 4, 2, 33, 1),
    Sketcher.Constraint("Vertical", 2, 2, 35, 1),
    Sketcher.Constraint("Vertical", 0, 2, 37, 1),
    Sketcher.Constraint("Equal", 0, 2),
    Sketcher.Constraint("Equal", 2, 4),
    Sketcher.Constraint("Equal", 4, 6),
    Sketcher.Constraint("Equal", 6, 8),
    Sketcher.Constraint("Equal", 8, 10),
    Sketcher.Constraint("Equal", 10, 12),
    Sketcher.Constraint("Equal", 12, 14),
    Sketcher.Constraint("Equal", 14, 16),
    Sketcher.Constraint("Equal", 16, 18),
    Sketcher.Constraint("Radius", 1, Q("5.5 mm")),
    Sketcher.Constraint("Radius", 3, Q("6.5 mm")),
    Sketcher.Constraint("Angle", 0, Q("110 deg")),
    Sketcher.Constraint("Angle", 2, Q("-128 deg")),
    Sketcher.Constraint("Angle", 4, Q("92 deg")),
    Sketcher.Constraint("Angle", 6, Q("-146 deg")),
    Sketcher.Constraint("Angle", 8, Q("74 deg")),
    Sketcher.Constraint("DistanceX", 1, 1, -1, 1, Q("1.0371 mm")),
])
pad2 = body.newObject("PartDesign::Pad", "Pad001")
pad2.Profile = sketch2
pad2.Length = 6
pad2.Reversed = True

# Sketch on XZ plane
sketch3 = body.newObject("Sketcher::SketchObject", "Sketch002")
sketch3.AttachmentSupport = (doc.getObject("XZ_Plane"), [""])
sketch3.MapMode = "FlatFace"
sketch3.AttachmentOffset = App.Placement(V(0, 0, -6), App.Rotation())
sketch3.addGeometry(Part.Circle(V(0, 0, 0), V(0, 0, 1), 8), False)
sketch3.addConstraint([
    Sketcher.Constraint("Coincident", 0, 3, -1, 1),
    Sketcher.Constraint("Diameter", 0, Q("16 mm")),
])
pad3 = body.newObject("PartDesign::Pad", "Pad002")
pad3.Profile = sketch3
pad3.Length = 2
pad3.Reversed = True

# Sketch on XZ plane
sketch4 = body.newObject("Sketcher::SketchObject", "Sketch003")
sketch4.AttachmentSupport = (doc.getObject("XZ_Plane"), [""])
sketch4.MapMode = "FlatFace"
sketch4.AttachmentOffset = App.Placement(V(0, 0, 6), App.Rotation())
sketch4.addGeometry(Part.Circle(V(0, 0, 0), V(0, 0, 1), 3), False)
sketch4.addConstraint([
    Sketcher.Constraint("Coincident", 0, 3, -1, 1),
    Sketcher.Constraint("Diameter", 0, Q("6 mm")),
])
pocket1 = body.newObject("PartDesign::Pocket", "Pocket")
pocket1.Profile = sketch4
pocket1.Type = "ThroughAll"

# Sketch on XZ plane
sketch5 = body.newObject("Sketcher::SketchObject", "Sketch004")
sketch5.AttachmentSupport = (doc.getObject("XZ_Plane"), [""])
sketch5.MapMode = "FlatFace"
sketch5.AttachmentOffset = App.Placement(V(0, 0, 6), App.Rotation())
sketch5.addGeometry(Part.Circle(V(0, 0, 0), V(0, 0, 1), 4), False)
sketch5.addConstraint([
    Sketcher.Constraint("Coincident", 0, 3, -1, 1),
    Sketcher.Constraint("Diameter", 0, Q("8 mm")),
])
pocket2 = body.newObject("PartDesign::Pocket", "Pocket001")
pocket2.Profile = sketch5
pocket2.Length = 0.3
doc.recompute()

fillet = body.newObject("PartDesign::Fillet", "Fillet")
fillet.Base = (pocket2, edges_at(pocket2, [(-3, 8, 0), (-3, -5.7, 0)]))
fillet.Radius = 0.05

doc.recompute()
